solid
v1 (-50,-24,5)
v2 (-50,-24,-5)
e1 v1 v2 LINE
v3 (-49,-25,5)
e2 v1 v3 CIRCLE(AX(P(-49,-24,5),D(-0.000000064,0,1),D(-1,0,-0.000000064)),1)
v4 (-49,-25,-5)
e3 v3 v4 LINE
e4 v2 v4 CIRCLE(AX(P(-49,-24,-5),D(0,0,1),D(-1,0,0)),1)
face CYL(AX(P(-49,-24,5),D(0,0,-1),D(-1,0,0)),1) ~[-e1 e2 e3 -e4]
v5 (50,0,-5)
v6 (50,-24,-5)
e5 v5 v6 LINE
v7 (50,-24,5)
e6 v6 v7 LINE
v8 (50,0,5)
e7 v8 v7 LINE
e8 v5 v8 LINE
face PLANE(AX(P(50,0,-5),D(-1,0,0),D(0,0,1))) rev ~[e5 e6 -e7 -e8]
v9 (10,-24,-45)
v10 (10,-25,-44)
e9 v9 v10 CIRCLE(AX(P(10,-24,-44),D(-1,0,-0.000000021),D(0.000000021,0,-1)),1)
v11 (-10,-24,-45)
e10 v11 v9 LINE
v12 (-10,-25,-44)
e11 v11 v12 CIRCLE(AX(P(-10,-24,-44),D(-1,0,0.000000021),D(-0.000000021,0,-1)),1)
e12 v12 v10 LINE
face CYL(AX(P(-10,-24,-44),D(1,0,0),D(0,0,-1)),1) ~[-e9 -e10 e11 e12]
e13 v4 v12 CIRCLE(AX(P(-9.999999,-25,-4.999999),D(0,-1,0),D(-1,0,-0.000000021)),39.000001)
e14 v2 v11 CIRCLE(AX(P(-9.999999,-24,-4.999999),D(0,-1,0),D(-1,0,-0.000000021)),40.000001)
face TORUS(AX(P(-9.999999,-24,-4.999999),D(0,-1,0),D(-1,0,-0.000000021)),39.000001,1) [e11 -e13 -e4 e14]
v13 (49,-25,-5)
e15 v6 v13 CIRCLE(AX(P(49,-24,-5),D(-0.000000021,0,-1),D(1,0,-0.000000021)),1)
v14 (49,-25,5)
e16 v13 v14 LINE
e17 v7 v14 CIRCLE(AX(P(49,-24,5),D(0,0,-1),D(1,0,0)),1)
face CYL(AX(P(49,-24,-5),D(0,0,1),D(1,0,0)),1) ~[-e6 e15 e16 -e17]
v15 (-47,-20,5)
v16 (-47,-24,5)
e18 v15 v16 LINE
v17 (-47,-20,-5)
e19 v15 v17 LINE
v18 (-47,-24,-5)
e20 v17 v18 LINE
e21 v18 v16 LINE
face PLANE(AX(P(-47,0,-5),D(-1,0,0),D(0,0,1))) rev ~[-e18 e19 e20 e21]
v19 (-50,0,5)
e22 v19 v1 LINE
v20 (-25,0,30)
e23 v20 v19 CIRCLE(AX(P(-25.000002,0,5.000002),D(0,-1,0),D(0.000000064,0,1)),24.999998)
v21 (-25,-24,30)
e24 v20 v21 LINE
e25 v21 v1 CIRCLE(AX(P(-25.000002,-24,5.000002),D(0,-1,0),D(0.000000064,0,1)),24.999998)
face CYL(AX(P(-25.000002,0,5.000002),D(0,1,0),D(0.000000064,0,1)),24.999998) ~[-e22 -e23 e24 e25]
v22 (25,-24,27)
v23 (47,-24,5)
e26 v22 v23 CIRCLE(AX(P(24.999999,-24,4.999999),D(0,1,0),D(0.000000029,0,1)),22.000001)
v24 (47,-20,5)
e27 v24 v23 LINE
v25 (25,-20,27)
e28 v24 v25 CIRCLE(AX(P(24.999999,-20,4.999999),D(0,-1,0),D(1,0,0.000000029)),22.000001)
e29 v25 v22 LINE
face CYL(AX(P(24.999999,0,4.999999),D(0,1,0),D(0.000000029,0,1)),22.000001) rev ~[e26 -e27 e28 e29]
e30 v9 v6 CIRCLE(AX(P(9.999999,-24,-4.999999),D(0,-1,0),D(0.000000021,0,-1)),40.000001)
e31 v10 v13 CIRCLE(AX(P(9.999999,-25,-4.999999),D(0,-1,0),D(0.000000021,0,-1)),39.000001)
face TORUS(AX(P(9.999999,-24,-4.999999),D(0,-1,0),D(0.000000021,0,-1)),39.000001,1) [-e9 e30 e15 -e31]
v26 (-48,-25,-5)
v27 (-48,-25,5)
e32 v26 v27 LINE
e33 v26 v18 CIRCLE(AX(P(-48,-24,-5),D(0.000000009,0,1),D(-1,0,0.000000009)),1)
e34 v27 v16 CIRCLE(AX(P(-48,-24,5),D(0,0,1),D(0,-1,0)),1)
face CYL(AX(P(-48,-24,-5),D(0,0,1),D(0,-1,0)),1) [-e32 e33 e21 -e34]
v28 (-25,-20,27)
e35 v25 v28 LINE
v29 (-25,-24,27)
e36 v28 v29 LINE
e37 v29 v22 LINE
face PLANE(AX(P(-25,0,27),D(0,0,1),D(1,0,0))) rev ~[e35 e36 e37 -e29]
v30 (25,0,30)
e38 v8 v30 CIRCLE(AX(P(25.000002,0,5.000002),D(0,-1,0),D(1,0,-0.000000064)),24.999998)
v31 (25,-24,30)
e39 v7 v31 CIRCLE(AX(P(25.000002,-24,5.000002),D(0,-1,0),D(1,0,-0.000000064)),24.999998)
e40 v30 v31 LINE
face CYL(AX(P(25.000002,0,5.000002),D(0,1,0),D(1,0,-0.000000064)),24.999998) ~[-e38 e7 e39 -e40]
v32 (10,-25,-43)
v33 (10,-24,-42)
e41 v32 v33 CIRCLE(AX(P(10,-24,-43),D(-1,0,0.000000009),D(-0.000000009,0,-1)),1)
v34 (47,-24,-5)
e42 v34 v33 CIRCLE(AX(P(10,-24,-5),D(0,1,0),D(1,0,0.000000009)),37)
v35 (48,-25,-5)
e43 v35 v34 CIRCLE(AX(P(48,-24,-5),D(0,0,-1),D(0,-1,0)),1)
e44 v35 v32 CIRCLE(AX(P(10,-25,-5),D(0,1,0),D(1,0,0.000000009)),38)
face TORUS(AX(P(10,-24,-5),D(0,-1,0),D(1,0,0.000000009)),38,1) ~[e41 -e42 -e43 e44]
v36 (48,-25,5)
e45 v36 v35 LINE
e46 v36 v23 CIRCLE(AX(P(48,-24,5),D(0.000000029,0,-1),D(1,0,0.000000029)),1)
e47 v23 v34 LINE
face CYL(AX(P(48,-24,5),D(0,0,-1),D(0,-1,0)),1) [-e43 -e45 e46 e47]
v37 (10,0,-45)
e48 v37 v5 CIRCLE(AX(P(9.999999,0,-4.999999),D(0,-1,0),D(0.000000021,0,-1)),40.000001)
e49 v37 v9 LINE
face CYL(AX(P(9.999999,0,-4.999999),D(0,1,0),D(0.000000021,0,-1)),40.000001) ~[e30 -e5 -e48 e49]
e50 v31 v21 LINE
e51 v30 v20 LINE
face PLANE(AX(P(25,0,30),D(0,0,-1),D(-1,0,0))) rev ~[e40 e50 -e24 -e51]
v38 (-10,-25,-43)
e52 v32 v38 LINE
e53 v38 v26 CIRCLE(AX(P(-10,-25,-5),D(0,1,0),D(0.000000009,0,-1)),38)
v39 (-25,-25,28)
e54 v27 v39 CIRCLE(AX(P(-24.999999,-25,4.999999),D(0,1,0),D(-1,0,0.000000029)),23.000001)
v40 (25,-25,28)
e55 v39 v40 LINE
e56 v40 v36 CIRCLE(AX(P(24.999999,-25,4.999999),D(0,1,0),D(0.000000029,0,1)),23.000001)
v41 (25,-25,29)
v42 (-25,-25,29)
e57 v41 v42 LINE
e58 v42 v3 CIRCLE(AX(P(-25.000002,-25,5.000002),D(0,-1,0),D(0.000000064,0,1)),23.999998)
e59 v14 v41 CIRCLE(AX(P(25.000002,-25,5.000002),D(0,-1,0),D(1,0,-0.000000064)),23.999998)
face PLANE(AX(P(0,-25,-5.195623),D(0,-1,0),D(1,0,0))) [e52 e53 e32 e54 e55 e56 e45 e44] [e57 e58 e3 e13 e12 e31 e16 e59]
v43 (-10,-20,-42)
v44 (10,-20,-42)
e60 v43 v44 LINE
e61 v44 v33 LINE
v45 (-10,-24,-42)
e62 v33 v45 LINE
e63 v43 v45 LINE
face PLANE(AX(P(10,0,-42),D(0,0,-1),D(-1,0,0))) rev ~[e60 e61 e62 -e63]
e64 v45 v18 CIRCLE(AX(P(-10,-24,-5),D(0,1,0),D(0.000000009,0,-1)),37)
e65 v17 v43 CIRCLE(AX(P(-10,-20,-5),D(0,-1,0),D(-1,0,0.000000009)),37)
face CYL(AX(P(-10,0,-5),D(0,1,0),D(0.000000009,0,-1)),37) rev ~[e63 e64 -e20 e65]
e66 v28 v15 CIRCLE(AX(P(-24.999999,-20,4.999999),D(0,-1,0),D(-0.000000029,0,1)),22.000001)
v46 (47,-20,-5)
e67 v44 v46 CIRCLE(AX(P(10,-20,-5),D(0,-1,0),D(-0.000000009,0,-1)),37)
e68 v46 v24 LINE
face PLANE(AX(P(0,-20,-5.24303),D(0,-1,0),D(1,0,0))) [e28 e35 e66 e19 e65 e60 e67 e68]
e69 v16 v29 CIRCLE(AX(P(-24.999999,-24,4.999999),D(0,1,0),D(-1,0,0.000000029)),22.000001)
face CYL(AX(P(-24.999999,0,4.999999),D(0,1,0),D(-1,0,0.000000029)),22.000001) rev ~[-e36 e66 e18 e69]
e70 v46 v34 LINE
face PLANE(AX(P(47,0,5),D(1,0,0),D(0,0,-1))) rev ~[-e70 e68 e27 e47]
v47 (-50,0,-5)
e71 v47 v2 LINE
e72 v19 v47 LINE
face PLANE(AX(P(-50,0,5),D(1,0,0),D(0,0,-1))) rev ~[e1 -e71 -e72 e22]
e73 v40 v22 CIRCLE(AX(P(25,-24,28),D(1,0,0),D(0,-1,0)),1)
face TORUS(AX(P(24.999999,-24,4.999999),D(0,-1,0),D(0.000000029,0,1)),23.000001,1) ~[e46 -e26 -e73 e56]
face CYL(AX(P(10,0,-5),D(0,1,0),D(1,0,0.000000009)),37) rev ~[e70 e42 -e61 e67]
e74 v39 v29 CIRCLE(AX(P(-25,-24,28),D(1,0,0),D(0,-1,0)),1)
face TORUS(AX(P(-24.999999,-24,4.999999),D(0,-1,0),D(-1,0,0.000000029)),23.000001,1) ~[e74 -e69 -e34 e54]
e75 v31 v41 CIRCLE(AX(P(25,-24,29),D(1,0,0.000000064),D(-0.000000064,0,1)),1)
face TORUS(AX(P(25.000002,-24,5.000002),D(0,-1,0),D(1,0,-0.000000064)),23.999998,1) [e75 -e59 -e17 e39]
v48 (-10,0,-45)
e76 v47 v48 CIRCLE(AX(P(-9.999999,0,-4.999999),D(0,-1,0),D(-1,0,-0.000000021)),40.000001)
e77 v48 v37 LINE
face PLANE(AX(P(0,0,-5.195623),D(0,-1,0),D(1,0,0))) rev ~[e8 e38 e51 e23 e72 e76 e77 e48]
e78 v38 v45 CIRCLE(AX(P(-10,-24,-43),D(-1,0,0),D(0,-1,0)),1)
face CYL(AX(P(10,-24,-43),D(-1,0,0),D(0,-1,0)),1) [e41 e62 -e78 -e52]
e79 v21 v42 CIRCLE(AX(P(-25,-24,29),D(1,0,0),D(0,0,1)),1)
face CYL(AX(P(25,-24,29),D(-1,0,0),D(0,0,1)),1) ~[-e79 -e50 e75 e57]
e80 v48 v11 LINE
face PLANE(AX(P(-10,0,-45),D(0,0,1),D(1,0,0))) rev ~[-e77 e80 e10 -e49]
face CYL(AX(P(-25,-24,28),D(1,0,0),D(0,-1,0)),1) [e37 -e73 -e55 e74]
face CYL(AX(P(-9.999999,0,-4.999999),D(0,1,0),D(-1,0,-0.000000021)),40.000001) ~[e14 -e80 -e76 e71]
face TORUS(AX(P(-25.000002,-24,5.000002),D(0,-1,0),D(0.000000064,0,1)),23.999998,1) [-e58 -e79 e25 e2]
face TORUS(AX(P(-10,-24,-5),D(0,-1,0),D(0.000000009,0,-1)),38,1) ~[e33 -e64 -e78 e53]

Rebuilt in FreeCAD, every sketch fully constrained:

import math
import FreeCAD as App
import Part
import Sketcher
Q = App.Units.Quantity


def edges_at(feature, points):
    """Names of the edges that pass closest to the given points."""
    edges = feature.Shape.Edges
    near = lambda p: min(range(len(edges)), key=lambda i: edges[i].distToShape(Part.Vertex(*p))[0])
    return sorted({f"Edge{near(p) + 1}" for p in points})

doc = App.newDocument("Part")
body = doc.addObject("PartDesign::Body", "Body")

sketch1 = body.newObject("Sketcher::SketchObject", "Sketch")
sketch1.AttachmentSupport = (doc.getObject("XZ_Plane"), [""])
sketch1.MapMode = "FlatFace"
sketch1.addGeometry([
    Part.LineSegment(App.Vector(25, 27, 0), App.Vector(-25, 27, 0)),
    Part.ArcOfCircle(Part.Circle(App.Vector(-25, 5, 0), App.Vector(0, 0, 1), 22), math.radians(90), math.radians(180)),
    Part.LineSegment(App.Vector(-47, 5, 0), App.Vector(-47, -5, 0)),
    Part.ArcOfCircle(Part.Circle(App.Vector(-10, -5, 0), App.Vector(0, 0, 1), 37), math.radians(180), math.radians(270)),
    Part.LineSegment(App.Vector(-10, -42, 0), App.Vector(10, -42, 0)),
    Part.ArcOfCircle(Part.Circle(App.Vector(10, -5, 0), App.Vector(0, 0, 1), 37), math.radians(-90), math.radians(0)),
    Part.LineSegment(App.Vector(47, -5, 0), App.Vector(47, 5, 0)),
    Part.ArcOfCircle(Part.Circle(App.Vector(25, 5, 0), App.Vector(0, 0, 1), 22), math.radians(0), math.radians(90)),
], False)
sketch1.addConstraint([
    Sketcher.Constraint("Tangent", 0, 2, 1, 1),
    Sketcher.Constraint("Tangent", 1, 2, 2, 1),
    Sketcher.Constraint("Tangent", 2, 2, 3, 1),
    Sketcher.Constraint("Tangent", 3, 2, 4, 1),
    Sketcher.Constraint("Tangent", 4, 2, 5, 1),
    Sketcher.Constraint("Tangent", 5, 2, 6, 1),
    Sketcher.Constraint("Tangent", 6, 2, 7, 1),
    Sketcher.Constraint("Tangent", 7, 2, 0, 1),
    Sketcher.Constraint("Horizontal", 0),
    Sketcher.Constraint("Vertical", 2),
    Sketcher.Constraint("Horizontal", 4),
    Sketcher.Constraint("Vertical", 6),
    Sketcher.Constraint("Equal", 3, 5),
    Sketcher.Constraint("Equal", 1, 7),
    Sketcher.Constraint("Symmetric", 1, 2, 5, 2, -1, 1),
    Sketcher.Constraint("Radius", 1, Q("22.000001 mm")),
    Sketcher.Constraint("Radius", 3, Q("37 mm")),
    Sketcher.Constraint("DistanceX", 0, 2, 0, 1, Q("50 mm")),
    Sketcher.Constraint("DistanceY", 2, 2, 2, 1, Q("10 mm")),
])
pad1 = body.newObject("PartDesign::Pad", "Pad")
pad1.Profile = sketch1
pad1.Length = 20

sketch2 = body.newObject("Sketcher::SketchObject", "Sketch001")
sketch2.AttachmentSupport = (doc.getObject("XZ_Plane"), [""])
sketch2.MapMode = "FlatFace"
sketch2.addGeometry([
    Part.ArcOfCircle(Part.Circle(App.Vector(10, -5, 0), App.Vector(0, 0, 1), 40), math.radians(-90), math.radians(0)),
    Part.LineSegment(App.Vector(50, -5, 0), App.Vector(50, 5, 0)),
    Part.ArcOfCircle(Part.Circle(App.Vector(25, 5, 0), App.Vector(0, 0, 1), 25), math.radians(0), math.radians(90)),
    Part.LineSegment(App.Vector(25, 30, 0), App.Vector(-25, 30, 0)),
    Part.ArcOfCircle(Part.Circle(App.Vector(-25, 5, 0), App.Vector(0, 0, 1), 25), math.radians(90), math.radians(180)),
    Part.LineSegment(App.Vector(-50, 5, 0), App.Vector(-50, -5, 0)),
    Part.ArcOfCircle(Part.Circle(App.Vector(-10, -5, 0), App.Vector(0, 0, 1), 40), math.radians(-180), math.radians(-90)),
    Part.LineSegment(App.Vector(-10, -45, 0), App.Vector(10, -45, 0)),
    Part.LineSegment(App.Vector(-47, -5, 0), App.Vector(-47, 5, 0)),
    Part.ArcOfCircle(Part.Circle(App.Vector(-25, 5, 0), App.Vector(0, 0, 1), 22), math.radians(90), math.radians(180)),
    Part.LineSegment(App.Vector(-25, 27, 0), App.Vector(25, 27, 0)),
    Part.ArcOfCircle(Part.Circle(App.Vector(25, 5, 0), App.Vector(0, 0, 1), 22), math.radians(0), math.radians(90)),
    Part.LineSegment(App.Vector(47, 5, 0), App.Vector(47, -5, 0)),
    Part.ArcOfCircle(Part.Circle(App.Vector(10, -5, 0), App.Vector(0, 0, 1), 37), math.radians(-90), math.radians(0)),
    Part.LineSegment(App.Vector(10, -42, 0), App.Vector(-10, -42, 0)),
    Part.ArcOfCircle(Part.Circle(App.Vector(-10, -5, 0), App.Vector(0, 0, 1), 37), math.radians(180), math.radians(270)),
], False)
sketch2.addConstraint([
    Sketcher.Constraint("Tangent", 0, 2, 1, 1),
    Sketcher.Constraint("Tangent", 1, 2, 2, 1),
    Sketcher.Constraint("Tangent", 2, 2, 3, 1),
    Sketcher.Constraint("Tangent", 3, 2, 4, 1),
    Sketcher.Constraint("Tangent", 4, 2, 5, 1),
    Sketcher.Constraint("Tangent", 5, 2, 6, 1),
    Sketcher.Constraint("Tangent", 6, 2, 7, 1),
    Sketcher.Constraint("Tangent", 7, 2, 0, 1),
    Sketcher.Constraint("Tangent", 8, 2, 9, 2),
    Sketcher.Constraint("Tangent", 9, 1, 10, 1),
    Sketcher.Constraint("Tangent", 10, 2, 11, 2),
    Sketcher.Constraint("Tangent", 11, 1, 12, 1),
    Sketcher.Constraint("Tangent", 12, 2, 13, 2),
    Sketcher.Constraint("Tangent", 13, 1, 14, 1),
    Sketcher.Constraint("Tangent", 14, 2, 15, 2),
    Sketcher.Constraint("Tangent", 15, 1, 8, 1),
    Sketcher.Constraint("Vertical", 1),
    Sketcher.Constraint("Horizontal", 3),
    Sketcher.Constraint("Vertical", 5),
    Sketcher.Constraint("Horizontal", 7),
    Sketcher.Constraint("Vertical", 8),
    Sketcher.Constraint("Horizontal", 10),
    Sketcher.Constraint("Vertical", 12),
    Sketcher.Constraint("Horizontal", 14),
    Sketcher.Constraint("Coincident", 9, 3, 4, 3),
    Sketcher.Constraint("Coincident", 11, 3, 2, 3),
    Sketcher.Constraint("Coincident", 13, 3, 0, 3),
    Sketcher.Constraint("Equal", 2, 4),
    Sketcher.Constraint("Equal", 0, 6),
    Sketcher.Constraint("Equal", 13, 15),
    Sketcher.Constraint("Symmetric", 0, 2, 4, 2, -1, 1),
    Sketcher.Constraint("Radius", 0, Q("40.000001 mm")),
    Sketcher.Constraint("Radius", 2, Q("24.999998 mm")),
    Sketcher.Constraint("Radius", 9, Q("22.000001 mm")),
    Sketcher.Constraint("DistanceX", 3, 2, 3, 1, Q("50 mm")),
    Sketcher.Constraint("DistanceY", 1, 1, 1, 2, Q("10 mm")),
])
pad2 = body.newObject("PartDesign::Pad", "Pad001")
pad2.Profile = sketch2
pad2.Length = 25
doc.recompute()

fillet = body.newObject("PartDesign::Fillet", "Fillet")
fillet.Base = (pad2, edges_at(pad2, [(0, -25, 27), (38.284, -25, -33.284)]))
fillet.Radius = 1

doc.recompute()
